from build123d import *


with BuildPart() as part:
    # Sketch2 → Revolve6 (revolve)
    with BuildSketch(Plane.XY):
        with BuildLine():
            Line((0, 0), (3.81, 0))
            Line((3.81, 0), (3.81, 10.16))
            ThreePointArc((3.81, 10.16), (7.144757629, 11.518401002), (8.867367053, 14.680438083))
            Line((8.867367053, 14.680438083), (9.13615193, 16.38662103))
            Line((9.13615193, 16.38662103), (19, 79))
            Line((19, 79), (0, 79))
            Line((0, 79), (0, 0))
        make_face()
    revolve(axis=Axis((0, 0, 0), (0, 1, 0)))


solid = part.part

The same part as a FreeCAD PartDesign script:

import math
import FreeCAD as App
import Part
import Sketcher

V = App.Vector
Q = App.Units.Quantity

doc = App.newDocument("Part")
params = doc.addObject("Spreadsheet::Sheet", "Params")
for row, (alias, value) in enumerate([
    ("sketch1_width", "19 mm"),
    ("sketch1_height", "79 mm"),
    ("sketch1_width2", "3.81 mm"),
    ("sketch1_height2", "10.16 mm"),
    ("revolution_angle", "360 deg"),
], start=1):
    params.set(f"A{row}", alias)
    params.set(f"B{row}", "=" + value)
    params.setAlias(f"B{row}", alias)

body = doc.addObject("PartDesign::Body", "Body")

sketch1 = body.newObject("Sketcher::SketchObject", "Sketch")
sketch1.AttachmentSupport = (doc.getObject("XY_Plane"), [""])
sketch1.MapMode = "FlatFace"
sketch1.addGeometry([
    Part.LineSegment(V(0, 0, 0), V(3.81, 0, 0)),
    Part.LineSegment(V(3.81, 0, 0), V(3.81, 10.16, 0)),
    Part.ArcOfCircle(Part.Circle(V(3.572911, 15.514504, 0), V(0, 0, 1), 5.359751), math.radians(-87.464693), math.radians(-8.95256)),
    Part.LineSegment(V(8.867367, 14.680438, 0), V(9.136152, 16.386621, 0)),
    Part.LineSegment(V(9.136152, 16.386621, 0), V(19, 79, 0)),
    Part.LineSegment(V(19, 79, 0), V(0, 79, 0)),
    Part.LineSegment(V(0, 79, 0), V(0, 0, 0)),
], False)
sketch1.addConstraint([
    Sketcher.Constraint("Coincident", 0, 2, 1, 1),
    Sketcher.Constraint("Coincident", 1, 2, 2, 1),
    Sketcher.Constraint("Tangent", 2, 2, 3, 1),
    Sketcher.Constraint("Coincident", 3, 2, 4, 1),
    Sketcher.Constraint("Coincident", 4, 2, 5, 1),
    Sketcher.Constraint("Coincident", 5, 2, 6, 1),
    Sketcher.Constraint("Coincident", 6, 2, 0, 1),
    Sketcher.Constraint("Horizontal", 0),
    Sketcher.Constraint("Vertical", 1),
    Sketcher.Constraint("Horizontal", 5),
    Sketcher.Constraint("Vertical", 6),
    Sketcher.Constraint("Coincident", 6, 2, -1, 1),
    Sketcher.Constraint("Parallel", 3, 4),
    Sketcher.Constraint("DistanceX", 5, 2, 5, 1, Q("19 mm")),
    Sketcher.Constraint("DistanceY", 6, 2, 6, 1, Q("79 mm")),
    Sketcher.Constraint("DistanceX", 0, 1, 0, 2, Q("3.81 mm")),
    Sketcher.Constraint("DistanceY", 1, 1, 1, 2, Q("10.16 mm")),
    Sketcher.Constraint("Radius", 2, Q("5.359751 mm")),
    Sketcher.Constraint("Distance", 4, Q("63.385572 mm")),
    Sketcher.Constraint("DistanceX", -1, 1, 2, 3, Q("3.572911 mm")),
])
sketch1.setExpression("Constraints[13]", "Params.sketch1_width")
sketch1.setExpression("Constraints[14]", "Params.sketch1_height")
sketch1.setExpression("Constraints[15]", "Params.sketch1_width2")
sketch1.setExpression("Constraints[16]", "Params.sketch1_height2")
revolution = body.newObject("PartDesign::Revolution", "Revolution")
revolution.Profile = sketch1
revolution.ReferenceAxis = (sketch1, ["V_Axis"])
revolution.setExpression("Angle", "Params.revolution_angle")

doc.recompute()
